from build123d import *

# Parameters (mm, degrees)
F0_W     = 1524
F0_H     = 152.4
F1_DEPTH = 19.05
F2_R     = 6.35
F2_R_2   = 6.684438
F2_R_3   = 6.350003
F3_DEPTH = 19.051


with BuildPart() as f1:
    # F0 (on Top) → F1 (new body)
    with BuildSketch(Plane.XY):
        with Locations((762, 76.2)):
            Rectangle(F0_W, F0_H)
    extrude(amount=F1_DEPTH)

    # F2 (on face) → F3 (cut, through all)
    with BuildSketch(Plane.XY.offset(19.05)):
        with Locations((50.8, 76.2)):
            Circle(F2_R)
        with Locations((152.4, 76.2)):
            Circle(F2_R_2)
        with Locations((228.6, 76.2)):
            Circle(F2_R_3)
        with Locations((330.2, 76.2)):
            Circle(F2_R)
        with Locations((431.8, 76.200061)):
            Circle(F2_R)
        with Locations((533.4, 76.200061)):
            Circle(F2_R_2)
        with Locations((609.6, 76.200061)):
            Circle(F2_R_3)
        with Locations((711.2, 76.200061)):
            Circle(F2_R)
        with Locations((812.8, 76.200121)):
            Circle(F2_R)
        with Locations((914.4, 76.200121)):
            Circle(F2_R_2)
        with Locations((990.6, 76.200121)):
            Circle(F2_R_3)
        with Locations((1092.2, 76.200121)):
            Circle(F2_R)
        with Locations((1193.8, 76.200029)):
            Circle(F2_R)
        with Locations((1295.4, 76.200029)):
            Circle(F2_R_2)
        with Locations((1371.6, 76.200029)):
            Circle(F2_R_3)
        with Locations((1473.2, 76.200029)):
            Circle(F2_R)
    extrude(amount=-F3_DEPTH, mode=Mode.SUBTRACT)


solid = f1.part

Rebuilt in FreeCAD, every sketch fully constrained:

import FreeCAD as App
import Part
import Sketcher
from FreeCAD import Vector
Q = App.Units.Quantity

doc = App.newDocument("Part")
body = doc.addObject("PartDesign::Body", "Body")

# Sketch on XY plane
sketch1 = doc.addObject("Sketcher::SketchObject", "Sketch")
body.addObject(sketch1)
sketch1.AttachmentSupport = (doc.XY_Plane, [""])
sketch1.MapMode = "FlatFace"
sketch1.addGeometry(Part.LineSegment(Vector(0, 152, 0), Vector(0, 0, 0)), False)
sketch1.addGeometry(Part.LineSegment(Vector(0, 0, 0), Vector(1524, 0, 0)), False)
sketch1.addGeometry(Part.LineSegment(Vector(1524, 0, 0), Vector(1524, 152, 0)), False)
sketch1.addGeometry(Part.LineSegment(Vector(1524, 152, 0), Vector(0, 152, 0)), False)
sketch1.addConstraint(Sketcher.Constraint("Coincident", 0, 2, 1, 1))
sketch1.addConstraint(Sketcher.Constraint("Coincident", 1, 2, 2, 1))
sketch1.addConstraint(Sketcher.Constraint("Coincident", 2, 2, 3, 1))
sketch1.addConstraint(Sketcher.Constraint("Coincident", 3, 2, 0, 1))
sketch1.addConstraint(Sketcher.Constraint("Vertical", 0))
sketch1.addConstraint(Sketcher.Constraint("Horizontal", 1))
sketch1.addConstraint(Sketcher.Constraint("Vertical", 2))
sketch1.addConstraint(Sketcher.Constraint("Horizontal", 3))
sketch1.addConstraint(Sketcher.Constraint("Coincident", 0, 2, -1, 1))
sketch1.addConstraint(Sketcher.Constraint("DistanceX", 1, 1, 1, 2, Q("60 in")))
sketch1.addConstraint(Sketcher.Constraint("DistanceY", 0, 2, 0, 1, Q("6 in")))
pad1 = doc.addObject("PartDesign::Pad", "Pad")
body.addObject(pad1)
pad1.Profile = sketch1
pad1.Length = Q("0.75 in")

# Sketch on XY plane
sketch2 = doc.addObject("Sketcher::SketchObject", "Sketch001")
body.addObject(sketch2)
sketch2.AttachmentSupport = (doc.XY_Plane, [""])
sketch2.MapMode = "FlatFace"
sketch2.AttachmentOffset = App.Placement(Vector(0, 0, 0.75 * 25.4), App.Rotation())
sketch2.addGeometry(Part.Circle(Vector(51, 76, 0), Vector(0, 0, 1), 6), False)
sketch2.addGeometry(Part.Circle(Vector(152, 76, 0), Vector(0, 0, 1), 7), False)
sketch2.addGeometry(Part.Circle(Vector(229, 76, 0), Vector(0, 0, 1), 6), False)
sketch2.addGeometry(Part.Circle(Vector(330, 76, 0), Vector(0, 0, 1), 6), False)
sketch2.addGeometry(Part.Circle(Vector(432, 76, 0), Vector(0, 0, 1), 6), False)
sketch2.addGeometry(Part.Circle(Vector(533, 76, 0), Vector(0, 0, 1), 7), False)
sketch2.addGeometry(Part.Circle(Vector(610, 76, 0), Vector(0, 0, 1), 6), False)
sketch2.addGeometry(Part.Circle(Vector(711, 76, 0), Vector(0, 0, 1), 6), False)
sketch2.addGeometry(Part.Circle(Vector(813, 76, 0), Vector(0, 0, 1), 6), False)
sketch2.addGeometry(Part.Circle(Vector(914, 76, 0), Vector(0, 0, 1), 7), False)
sketch2.addGeometry(Part.Circle(Vector(991, 76, 0), Vector(0, 0, 1), 6), False)
sketch2.addGeometry(Part.Circle(Vector(1092, 76, 0), Vector(0, 0, 1), 6), False)
sketch2.addGeometry(Part.Circle(Vector(1194, 76, 0), Vector(0, 0, 1), 6), False)
sketch2.addGeometry(Part.Circle(Vector(1295, 76, 0), Vector(0, 0, 1), 7), False)
sketch2.addGeometry(Part.Circle(Vector(1372, 76, 0), Vector(0, 0, 1), 6), False)
sketch2.addGeometry(Part.Circle(Vector(1473, 76, 0), Vector(0, 0, 1), 6), False)
sketch2.addConstraint(Sketcher.Constraint("Equal", 0, 3))
sketch2.addConstraint(Sketcher.Constraint("Equal", 3, 4))
sketch2.addConstraint(Sketcher.Constraint("Equal", 1, 5))
sketch2.addConstraint(Sketcher.Constraint("Equal", 2, 6))
sketch2.addConstraint(Sketcher.Constraint("Equal", 4, 7))
sketch2.addConstraint(Sketcher.Constraint("Equal", 7, 8))
sketch2.addConstraint(Sketcher.Constraint("Equal", 5, 9))
sketch2.addConstraint(Sketcher.Constraint("Equal", 6, 10))
sketch2.addConstraint(Sketcher.Constraint("Equal", 8, 11))
sketch2.addConstraint(Sketcher.Constraint("Equal", 11, 12))
sketch2.addConstraint(Sketcher.Constraint("Equal", 9, 13))
sketch2.addConstraint(Sketcher.Constraint("Equal", 10, 14))
sketch2.addConstraint(Sketcher.Constraint("Equal", 12, 15))
sketch2.addConstraint(Sketcher.Constraint("Horizontal", 0, 3, 1, 3))
sketch2.addConstraint(Sketcher.Constraint("Horizontal", 1, 3, 2, 3))
sketch2.addConstraint(Sketcher.Constraint("Horizontal", 2, 3, 3, 3))
sketch2.addConstraint(Sketcher.Constraint("Horizontal", 4, 3, 5, 3))
sketch2.addConstraint(Sketcher.Constraint("Horizontal", 5, 3, 6, 3))
sketch2.addConstraint(Sketcher.Constraint("Horizontal", 6, 3, 7, 3))
sketch2.addConstraint(Sketcher.Constraint("Horizontal", 8, 3, 9, 3))
sketch2.addConstraint(Sketcher.Constraint("Horizontal", 9, 3, 10, 3))
sketch2.addConstraint(Sketcher.Constraint("Horizontal", 10, 3, 11, 3))
sketch2.addConstraint(Sketcher.Constraint("Horizontal", 12, 3, 13, 3))
sketch2.addConstraint(Sketcher.Constraint("Horizontal", 13, 3, 14, 3))
sketch2.addConstraint(Sketcher.Constraint("Horizontal", 14, 3, 15, 3))
sketch2.addConstraint(Sketcher.Constraint("Diameter", 0, Q("0.5 in")))
sketch2.addConstraint(Sketcher.Constraint("DistanceX", -1, 1, 0, 3, Q("2 in")))
sketch2.addConstraint(Sketcher.Constraint("DistanceY", -1, 1, 0, 3, Q("3 in")))
sketch2.addConstraint(Sketcher.Constraint("DistanceX", -1, 1, 1, 3, Q("6 in")))
sketch2.addConstraint(Sketcher.Constraint("DistanceX", -1, 1, 2, 3, Q("9 in")))
sketch2.addConstraint(Sketcher.Constraint("DistanceX", -1, 1, 3, 3, Q("13 in")))
sketch2.addConstraint(Sketcher.Constraint("DistanceX", -1, 1, 4, 3, Q("17 in")))
sketch2.addConstraint(Sketcher.Constraint("DistanceX", -1, 1, 5, 3, Q("21 in")))
sketch2.addConstraint(Sketcher.Constraint("DistanceX", -1, 1, 6, 3, Q("24 in")))
sketch2.addConstraint(Sketcher.Constraint("DistanceX", -1, 1, 7, 3, Q("28 in")))
sketch2.addConstraint(Sketcher.Constraint("DistanceX", -1, 1, 8, 3, Q("32 in")))
sketch2.addConstraint(Sketcher.Constraint("DistanceX", -1, 1, 9, 3, Q("36 in")))
sketch2.addConstraint(Sketcher.Constraint("DistanceX", -1, 1, 10, 3, Q("39 in")))
sketch2.addConstraint(Sketcher.Constraint("DistanceX", -1, 1, 11, 3, Q("43 in")))
sketch2.addConstraint(Sketcher.Constraint("DistanceX", -1, 1, 12, 3, Q("47 in")))
sketch2.addConstraint(Sketcher.Constraint("DistanceX", -1, 1, 13, 3, Q("51 in")))
sketch2.addConstraint(Sketcher.Constraint("DistanceX", -1, 1, 14, 3, Q("54 in")))
sketch2.addConstraint(Sketcher.Constraint("DistanceX", -1, 1, 15, 3, Q("58 in")))
sketch2.addConstraint(Sketcher.Constraint("Diameter", 1, 13.368876))
sketch2.addConstraint(Sketcher.Constraint("Diameter", 2, 12.700006))
sketch2.addConstraint(Sketcher.Constraint("DistanceY", -1, 1, 4, 3, 76.200061))
sketch2.addConstraint(Sketcher.Constraint("DistanceY", -1, 1, 8, 3, 76.200121))
sketch2.addConstraint(Sketcher.Constraint("DistanceY", -1, 1, 12, 3, 76.200029))
pocket1 = doc.addObject("PartDesign::Pocket", "Pocket")
body.addObject(pocket1)
pocket1.Profile = sketch2
pocket1.Type = "ThroughAll"

doc.recompute()
